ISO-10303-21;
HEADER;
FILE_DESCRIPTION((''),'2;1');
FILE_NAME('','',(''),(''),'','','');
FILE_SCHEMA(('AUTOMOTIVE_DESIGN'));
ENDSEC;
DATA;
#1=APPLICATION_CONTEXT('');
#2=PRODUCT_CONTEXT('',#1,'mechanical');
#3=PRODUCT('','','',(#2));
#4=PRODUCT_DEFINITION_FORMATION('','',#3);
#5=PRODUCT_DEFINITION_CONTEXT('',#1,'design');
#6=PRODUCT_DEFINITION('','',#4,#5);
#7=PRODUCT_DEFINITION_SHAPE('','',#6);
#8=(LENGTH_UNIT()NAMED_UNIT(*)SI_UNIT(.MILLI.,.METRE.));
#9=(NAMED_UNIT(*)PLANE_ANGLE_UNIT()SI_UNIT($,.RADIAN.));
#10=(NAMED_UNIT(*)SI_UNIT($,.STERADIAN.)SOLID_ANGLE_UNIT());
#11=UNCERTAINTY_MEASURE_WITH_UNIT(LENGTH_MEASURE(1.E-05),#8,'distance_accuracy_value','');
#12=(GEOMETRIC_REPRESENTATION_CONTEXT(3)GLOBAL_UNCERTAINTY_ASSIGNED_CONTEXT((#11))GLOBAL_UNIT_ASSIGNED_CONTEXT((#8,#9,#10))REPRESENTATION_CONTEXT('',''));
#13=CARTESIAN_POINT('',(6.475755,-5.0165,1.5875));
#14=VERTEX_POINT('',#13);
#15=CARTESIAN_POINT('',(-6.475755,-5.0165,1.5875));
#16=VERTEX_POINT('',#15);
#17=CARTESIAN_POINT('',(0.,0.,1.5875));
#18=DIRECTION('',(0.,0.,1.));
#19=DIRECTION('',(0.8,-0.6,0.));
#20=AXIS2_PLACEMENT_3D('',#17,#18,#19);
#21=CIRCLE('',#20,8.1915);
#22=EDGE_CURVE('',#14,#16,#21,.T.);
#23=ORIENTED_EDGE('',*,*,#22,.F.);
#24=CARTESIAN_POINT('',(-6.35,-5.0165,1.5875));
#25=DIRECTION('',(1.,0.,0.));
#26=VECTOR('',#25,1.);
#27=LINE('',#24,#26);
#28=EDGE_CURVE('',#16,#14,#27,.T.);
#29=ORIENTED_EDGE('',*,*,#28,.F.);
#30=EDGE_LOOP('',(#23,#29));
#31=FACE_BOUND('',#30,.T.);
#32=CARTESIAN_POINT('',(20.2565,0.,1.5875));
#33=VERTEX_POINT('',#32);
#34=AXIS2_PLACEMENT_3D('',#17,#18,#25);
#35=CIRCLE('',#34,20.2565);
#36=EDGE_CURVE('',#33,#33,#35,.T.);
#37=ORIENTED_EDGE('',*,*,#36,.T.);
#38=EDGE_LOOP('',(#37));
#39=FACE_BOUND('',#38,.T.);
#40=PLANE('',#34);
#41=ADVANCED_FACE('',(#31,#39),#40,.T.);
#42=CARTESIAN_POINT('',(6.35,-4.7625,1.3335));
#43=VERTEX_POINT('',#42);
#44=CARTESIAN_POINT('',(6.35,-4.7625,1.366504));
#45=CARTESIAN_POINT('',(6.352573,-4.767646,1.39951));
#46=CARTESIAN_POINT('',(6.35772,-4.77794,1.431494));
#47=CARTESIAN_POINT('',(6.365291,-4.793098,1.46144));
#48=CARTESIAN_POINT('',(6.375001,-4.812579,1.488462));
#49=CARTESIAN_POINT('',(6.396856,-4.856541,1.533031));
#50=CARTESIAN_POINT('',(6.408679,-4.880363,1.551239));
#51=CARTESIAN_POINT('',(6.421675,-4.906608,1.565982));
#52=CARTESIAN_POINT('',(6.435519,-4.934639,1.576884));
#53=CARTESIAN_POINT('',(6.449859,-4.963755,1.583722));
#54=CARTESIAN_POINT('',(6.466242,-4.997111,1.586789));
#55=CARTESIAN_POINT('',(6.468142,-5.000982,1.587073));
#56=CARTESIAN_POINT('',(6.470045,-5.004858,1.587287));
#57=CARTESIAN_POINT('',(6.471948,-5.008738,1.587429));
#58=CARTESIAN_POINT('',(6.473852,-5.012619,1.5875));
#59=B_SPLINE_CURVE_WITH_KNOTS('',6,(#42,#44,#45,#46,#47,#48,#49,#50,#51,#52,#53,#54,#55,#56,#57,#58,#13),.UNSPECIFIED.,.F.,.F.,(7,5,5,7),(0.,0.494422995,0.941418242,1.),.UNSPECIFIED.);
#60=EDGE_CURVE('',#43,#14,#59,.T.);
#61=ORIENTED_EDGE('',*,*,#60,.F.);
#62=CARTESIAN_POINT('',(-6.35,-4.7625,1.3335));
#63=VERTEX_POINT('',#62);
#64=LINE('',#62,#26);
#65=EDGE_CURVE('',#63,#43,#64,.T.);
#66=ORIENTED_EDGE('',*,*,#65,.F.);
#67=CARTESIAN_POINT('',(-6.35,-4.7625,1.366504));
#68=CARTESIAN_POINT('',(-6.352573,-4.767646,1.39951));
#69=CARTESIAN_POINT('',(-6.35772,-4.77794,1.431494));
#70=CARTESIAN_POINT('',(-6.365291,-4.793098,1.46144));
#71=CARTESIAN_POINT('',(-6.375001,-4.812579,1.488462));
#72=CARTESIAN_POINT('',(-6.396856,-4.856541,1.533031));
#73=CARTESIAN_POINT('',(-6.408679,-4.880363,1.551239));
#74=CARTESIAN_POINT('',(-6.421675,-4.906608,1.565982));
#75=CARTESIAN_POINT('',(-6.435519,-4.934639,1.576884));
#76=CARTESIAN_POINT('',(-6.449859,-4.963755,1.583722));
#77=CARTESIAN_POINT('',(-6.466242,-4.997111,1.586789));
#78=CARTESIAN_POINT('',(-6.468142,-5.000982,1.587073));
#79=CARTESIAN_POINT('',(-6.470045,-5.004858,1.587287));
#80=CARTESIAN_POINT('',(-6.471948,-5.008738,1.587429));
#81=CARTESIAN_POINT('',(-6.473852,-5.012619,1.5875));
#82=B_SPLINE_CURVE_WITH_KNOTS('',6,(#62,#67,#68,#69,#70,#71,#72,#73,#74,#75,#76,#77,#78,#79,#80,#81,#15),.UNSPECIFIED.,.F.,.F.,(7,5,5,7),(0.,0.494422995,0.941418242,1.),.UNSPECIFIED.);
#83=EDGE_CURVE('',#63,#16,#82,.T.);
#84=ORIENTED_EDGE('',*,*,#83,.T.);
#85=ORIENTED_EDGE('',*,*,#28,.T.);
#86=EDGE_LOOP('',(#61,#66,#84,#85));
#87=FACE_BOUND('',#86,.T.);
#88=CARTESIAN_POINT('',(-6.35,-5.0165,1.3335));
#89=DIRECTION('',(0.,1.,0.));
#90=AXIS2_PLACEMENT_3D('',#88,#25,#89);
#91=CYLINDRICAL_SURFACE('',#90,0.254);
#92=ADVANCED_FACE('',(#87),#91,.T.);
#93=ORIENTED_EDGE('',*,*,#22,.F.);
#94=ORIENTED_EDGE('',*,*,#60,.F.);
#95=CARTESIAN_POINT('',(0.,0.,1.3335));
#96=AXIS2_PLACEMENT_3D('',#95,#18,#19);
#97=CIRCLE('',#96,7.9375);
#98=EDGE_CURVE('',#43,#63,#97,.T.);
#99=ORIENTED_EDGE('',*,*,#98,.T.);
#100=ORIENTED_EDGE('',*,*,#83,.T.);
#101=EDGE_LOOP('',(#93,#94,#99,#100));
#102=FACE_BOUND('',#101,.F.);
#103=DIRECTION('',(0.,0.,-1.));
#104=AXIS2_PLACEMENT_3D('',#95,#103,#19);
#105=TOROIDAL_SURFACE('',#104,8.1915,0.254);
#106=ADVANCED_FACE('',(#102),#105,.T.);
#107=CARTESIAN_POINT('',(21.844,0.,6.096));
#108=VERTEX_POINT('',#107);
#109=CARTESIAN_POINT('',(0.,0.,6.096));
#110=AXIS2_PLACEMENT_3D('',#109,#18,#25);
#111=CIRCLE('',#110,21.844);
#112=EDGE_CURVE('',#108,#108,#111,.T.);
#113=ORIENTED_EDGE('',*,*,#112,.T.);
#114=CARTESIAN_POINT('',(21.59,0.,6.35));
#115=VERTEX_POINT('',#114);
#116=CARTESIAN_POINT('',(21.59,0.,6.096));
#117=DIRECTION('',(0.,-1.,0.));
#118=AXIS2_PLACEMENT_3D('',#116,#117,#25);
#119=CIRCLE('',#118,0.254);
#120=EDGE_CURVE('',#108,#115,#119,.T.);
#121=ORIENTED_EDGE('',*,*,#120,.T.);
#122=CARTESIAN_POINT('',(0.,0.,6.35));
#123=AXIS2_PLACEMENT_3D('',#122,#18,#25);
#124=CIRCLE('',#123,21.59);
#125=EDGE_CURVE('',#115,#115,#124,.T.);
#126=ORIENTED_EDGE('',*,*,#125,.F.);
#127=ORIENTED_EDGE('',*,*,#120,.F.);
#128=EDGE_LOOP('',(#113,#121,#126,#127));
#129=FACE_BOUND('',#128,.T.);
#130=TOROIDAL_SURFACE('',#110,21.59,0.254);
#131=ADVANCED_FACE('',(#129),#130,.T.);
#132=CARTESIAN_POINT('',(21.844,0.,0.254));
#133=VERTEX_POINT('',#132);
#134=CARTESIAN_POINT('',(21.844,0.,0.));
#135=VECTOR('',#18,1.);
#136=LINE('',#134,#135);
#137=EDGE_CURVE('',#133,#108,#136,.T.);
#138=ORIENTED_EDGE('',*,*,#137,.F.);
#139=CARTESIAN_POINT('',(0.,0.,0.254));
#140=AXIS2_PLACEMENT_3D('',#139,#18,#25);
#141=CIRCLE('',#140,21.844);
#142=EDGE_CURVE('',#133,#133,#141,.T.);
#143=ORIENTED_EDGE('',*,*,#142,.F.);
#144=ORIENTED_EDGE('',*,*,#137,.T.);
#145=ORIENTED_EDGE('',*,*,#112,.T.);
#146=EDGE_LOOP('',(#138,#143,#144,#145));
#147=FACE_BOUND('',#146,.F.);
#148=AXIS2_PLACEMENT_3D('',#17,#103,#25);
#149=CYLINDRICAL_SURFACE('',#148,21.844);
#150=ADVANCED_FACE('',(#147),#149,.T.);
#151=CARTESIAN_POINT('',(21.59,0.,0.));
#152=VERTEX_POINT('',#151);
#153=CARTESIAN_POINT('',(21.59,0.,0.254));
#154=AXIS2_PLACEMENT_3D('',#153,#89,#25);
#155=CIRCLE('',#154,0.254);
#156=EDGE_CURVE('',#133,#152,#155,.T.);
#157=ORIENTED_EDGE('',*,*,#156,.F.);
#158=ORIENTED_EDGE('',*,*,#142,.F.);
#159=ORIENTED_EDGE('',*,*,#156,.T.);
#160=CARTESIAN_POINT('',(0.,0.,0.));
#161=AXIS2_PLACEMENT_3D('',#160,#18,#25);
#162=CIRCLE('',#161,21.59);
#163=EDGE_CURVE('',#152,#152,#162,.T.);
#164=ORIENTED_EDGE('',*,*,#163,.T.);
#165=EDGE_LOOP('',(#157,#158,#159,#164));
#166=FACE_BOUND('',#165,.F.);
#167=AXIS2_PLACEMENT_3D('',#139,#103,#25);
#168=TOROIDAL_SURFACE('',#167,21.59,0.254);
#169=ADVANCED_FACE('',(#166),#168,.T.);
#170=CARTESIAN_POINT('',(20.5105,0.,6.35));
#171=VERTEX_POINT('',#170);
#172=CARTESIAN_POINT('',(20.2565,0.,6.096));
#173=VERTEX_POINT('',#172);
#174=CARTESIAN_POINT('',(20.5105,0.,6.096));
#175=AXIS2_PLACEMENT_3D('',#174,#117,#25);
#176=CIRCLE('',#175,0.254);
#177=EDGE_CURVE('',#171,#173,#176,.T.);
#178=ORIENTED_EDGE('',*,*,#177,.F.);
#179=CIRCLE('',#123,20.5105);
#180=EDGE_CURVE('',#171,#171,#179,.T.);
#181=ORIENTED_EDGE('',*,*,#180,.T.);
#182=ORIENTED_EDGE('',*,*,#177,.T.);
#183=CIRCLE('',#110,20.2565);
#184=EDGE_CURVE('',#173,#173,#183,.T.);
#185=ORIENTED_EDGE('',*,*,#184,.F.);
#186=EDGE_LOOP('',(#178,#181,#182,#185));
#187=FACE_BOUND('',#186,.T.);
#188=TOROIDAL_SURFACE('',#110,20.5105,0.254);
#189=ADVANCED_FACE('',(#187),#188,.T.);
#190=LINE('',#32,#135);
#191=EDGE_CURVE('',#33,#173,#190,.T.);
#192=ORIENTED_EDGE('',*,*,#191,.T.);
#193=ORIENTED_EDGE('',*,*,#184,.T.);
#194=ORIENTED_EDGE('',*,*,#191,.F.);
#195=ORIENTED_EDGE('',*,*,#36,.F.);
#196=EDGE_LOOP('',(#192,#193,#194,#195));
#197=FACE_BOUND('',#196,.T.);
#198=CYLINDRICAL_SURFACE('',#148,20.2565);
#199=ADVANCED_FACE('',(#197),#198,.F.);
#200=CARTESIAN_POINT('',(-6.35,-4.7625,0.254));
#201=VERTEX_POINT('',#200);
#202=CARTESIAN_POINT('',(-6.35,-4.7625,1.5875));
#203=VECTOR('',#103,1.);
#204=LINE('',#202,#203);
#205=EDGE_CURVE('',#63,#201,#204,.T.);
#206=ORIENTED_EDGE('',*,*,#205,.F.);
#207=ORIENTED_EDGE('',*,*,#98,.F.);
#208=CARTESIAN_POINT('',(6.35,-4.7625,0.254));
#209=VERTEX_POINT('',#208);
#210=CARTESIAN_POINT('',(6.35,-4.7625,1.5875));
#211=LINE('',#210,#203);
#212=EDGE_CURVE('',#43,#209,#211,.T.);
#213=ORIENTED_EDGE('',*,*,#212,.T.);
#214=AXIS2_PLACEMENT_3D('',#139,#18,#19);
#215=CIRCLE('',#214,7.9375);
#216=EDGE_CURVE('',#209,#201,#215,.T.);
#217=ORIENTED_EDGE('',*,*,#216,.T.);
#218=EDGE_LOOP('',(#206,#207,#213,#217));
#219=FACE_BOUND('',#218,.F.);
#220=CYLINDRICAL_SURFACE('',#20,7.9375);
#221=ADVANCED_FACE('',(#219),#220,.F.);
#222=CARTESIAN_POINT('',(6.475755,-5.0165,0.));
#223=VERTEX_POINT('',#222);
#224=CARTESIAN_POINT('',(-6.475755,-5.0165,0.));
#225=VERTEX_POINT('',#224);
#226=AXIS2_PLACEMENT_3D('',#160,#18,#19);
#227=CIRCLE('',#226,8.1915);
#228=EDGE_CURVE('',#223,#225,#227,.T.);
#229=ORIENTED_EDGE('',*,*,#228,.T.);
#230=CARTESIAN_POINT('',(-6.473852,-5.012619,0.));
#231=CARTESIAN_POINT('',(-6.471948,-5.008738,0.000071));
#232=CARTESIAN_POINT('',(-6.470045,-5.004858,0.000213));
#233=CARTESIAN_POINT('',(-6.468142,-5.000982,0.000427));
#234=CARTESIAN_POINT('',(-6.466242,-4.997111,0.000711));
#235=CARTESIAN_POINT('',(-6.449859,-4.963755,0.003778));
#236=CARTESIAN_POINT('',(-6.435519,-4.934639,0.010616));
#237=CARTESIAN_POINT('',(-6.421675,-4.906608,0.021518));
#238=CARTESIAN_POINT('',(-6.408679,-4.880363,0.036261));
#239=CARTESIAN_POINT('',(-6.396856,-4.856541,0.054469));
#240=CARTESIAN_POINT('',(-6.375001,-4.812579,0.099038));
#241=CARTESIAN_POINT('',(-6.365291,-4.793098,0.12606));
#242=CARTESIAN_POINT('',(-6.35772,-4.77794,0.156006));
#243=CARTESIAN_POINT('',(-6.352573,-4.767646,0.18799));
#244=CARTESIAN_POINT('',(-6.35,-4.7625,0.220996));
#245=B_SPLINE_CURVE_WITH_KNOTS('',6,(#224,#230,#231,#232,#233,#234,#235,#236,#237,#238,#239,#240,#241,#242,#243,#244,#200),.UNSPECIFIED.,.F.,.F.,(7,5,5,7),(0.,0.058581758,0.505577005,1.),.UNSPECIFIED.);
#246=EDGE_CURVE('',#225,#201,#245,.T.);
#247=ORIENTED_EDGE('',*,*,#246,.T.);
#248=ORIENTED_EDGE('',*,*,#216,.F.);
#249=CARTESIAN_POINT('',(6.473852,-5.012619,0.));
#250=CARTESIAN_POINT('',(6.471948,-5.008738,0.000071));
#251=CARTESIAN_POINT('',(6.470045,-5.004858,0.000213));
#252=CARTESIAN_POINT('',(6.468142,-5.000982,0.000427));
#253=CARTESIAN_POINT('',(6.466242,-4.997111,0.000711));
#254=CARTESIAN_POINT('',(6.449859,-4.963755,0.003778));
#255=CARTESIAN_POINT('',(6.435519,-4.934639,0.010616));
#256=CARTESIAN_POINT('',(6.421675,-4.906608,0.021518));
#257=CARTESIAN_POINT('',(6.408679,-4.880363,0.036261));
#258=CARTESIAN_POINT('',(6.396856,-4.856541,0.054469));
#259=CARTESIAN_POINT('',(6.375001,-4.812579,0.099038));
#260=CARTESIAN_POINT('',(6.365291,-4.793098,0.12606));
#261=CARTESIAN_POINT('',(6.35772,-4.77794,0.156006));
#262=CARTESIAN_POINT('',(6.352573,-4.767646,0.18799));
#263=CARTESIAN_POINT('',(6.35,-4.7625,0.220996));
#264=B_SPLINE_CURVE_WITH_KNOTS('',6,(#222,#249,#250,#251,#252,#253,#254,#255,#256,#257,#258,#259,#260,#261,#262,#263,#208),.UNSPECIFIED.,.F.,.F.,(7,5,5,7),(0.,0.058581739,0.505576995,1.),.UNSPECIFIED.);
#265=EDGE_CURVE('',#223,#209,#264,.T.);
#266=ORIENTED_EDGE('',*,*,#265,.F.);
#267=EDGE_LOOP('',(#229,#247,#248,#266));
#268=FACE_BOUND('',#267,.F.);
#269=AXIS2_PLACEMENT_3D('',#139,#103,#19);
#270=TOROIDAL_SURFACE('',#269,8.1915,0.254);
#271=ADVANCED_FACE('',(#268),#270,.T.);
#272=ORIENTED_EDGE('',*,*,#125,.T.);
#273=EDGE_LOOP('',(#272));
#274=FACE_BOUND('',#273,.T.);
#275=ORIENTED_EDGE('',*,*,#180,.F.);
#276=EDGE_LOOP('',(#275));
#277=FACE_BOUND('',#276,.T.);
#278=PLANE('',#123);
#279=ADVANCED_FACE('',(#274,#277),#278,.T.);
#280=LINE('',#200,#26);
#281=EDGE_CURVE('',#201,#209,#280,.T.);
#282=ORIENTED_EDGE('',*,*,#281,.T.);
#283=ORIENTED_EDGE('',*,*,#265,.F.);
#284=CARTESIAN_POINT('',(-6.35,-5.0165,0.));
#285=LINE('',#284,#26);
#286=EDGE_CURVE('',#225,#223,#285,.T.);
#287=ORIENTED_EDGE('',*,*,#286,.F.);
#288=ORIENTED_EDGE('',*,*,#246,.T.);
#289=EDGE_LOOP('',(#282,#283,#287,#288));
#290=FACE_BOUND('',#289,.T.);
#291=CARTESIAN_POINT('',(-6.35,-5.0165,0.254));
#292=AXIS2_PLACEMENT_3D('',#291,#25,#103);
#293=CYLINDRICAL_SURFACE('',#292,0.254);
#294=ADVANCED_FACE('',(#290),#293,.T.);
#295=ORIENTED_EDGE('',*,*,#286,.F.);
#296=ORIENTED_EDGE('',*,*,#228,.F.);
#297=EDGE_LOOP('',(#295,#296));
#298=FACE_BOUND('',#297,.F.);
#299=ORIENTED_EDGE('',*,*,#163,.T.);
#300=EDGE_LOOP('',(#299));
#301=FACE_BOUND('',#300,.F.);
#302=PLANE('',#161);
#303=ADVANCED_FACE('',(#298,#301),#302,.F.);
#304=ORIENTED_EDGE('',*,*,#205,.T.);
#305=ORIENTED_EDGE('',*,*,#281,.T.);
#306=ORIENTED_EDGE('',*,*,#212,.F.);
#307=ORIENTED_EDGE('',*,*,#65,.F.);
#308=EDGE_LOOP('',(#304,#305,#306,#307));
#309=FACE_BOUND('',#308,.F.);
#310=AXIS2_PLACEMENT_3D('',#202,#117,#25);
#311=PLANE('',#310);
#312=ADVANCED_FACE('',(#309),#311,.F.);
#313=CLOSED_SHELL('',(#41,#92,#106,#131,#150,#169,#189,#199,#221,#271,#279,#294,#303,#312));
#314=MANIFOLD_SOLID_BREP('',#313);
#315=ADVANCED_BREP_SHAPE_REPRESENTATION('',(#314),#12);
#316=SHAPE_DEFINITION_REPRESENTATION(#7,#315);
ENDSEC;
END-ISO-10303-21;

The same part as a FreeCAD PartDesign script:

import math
import FreeCAD as App
import Part
import Sketcher
Q = App.Units.Quantity


def edges_at(feature, points):
    """Names of the edges that pass closest to the given points."""
    edges = feature.Shape.Edges
    near = lambda p: min(range(len(edges)), key=lambda i: edges[i].distToShape(Part.Vertex(*p))[0])
    return sorted({f"Edge{near(p) + 1}" for p in points})

doc = App.newDocument("Part")
params = doc.addObject("Spreadsheet::Sheet", "Params")
for row, (alias, value) in enumerate([
    ("sketch1_diameter", "1.72 in"),
    ("pad1_length", "0.0625 in"),
    ("sketch2_diameter", "1.72 in"),
    ("sketch2_diameter2", "1.595 in"),
    ("pad2_length", "0.1875 in"),
    ("sketch3_width", "0.5 in"),
    ("sketch3_radius", "0.3125 in"),
    ("pocket1_length", "1 in"),
    ("fillet_radius", "0.01 in"),
], start=1):
    params.set(f"A{row}", alias)
    params.set(f"B{row}", "=" + value)
    params.setAlias(f"B{row}", alias)

body = doc.addObject("PartDesign::Body", "Body")

# Sketch on XY plane
sketch1 = doc.addObject("Sketcher::SketchObject", "Sketch")
body.addObject(sketch1)
sketch1.AttachmentSupport = (doc.XY_Plane, [""])
sketch1.MapMode = "FlatFace"
sketch1.addGeometry(Part.Circle(App.Vector(0, 0, 0), App.Vector(0, 0, 1), 22), False)
sketch1.addConstraint([
    Sketcher.Constraint("Coincident", 0, 3, -1, 1),
    Sketcher.Constraint("Diameter", 0, Q("1.72 in")),
])
sketch1.setExpression("Constraints[1]", "Params.sketch1_diameter")
pad1 = doc.addObject("PartDesign::Pad", "Pad")
body.addObject(pad1)
pad1.Profile = sketch1
pad1.setExpression("Length", "Params.pad1_length")

# Sketch on XY plane
sketch2 = doc.addObject("Sketcher::SketchObject", "Sketch001")
body.addObject(sketch2)
sketch2.AttachmentSupport = (doc.XY_Plane, [""])
sketch2.MapMode = "FlatFace"
sketch2.AttachmentOffset = App.Placement(App.Vector(0, 0, 0.0625 * 25.4), App.Rotation())
sketch2.addGeometry([
    Part.Circle(App.Vector(0, 0, 0), App.Vector(0, 0, 1), 22),
    Part.Circle(App.Vector(0, 0, 0), App.Vector(0, 0, 1), 20),
], False)
sketch2.addConstraint([
    Sketcher.Constraint("Coincident", 0, 3, -1, 1),
    Sketcher.Constraint("Coincident", 1, 3, -1, 1),
    Sketcher.Constraint("Diameter", 0, Q("1.72 in")),
    Sketcher.Constraint("Diameter", 1, Q("1.595 in")),
])
sketch2.setExpression("Constraints[2]", "Params.sketch2_diameter")
sketch2.setExpression("Constraints[3]", "Params.sketch2_diameter2")
pad2 = doc.addObject("PartDesign::Pad", "Pad001")
body.addObject(pad2)
pad2.Profile = sketch2
pad2.setExpression("Length", "Params.pad2_length")

# Sketch on XY plane
sketch3 = doc.addObject("Sketcher::SketchObject", "Sketch002")
body.addObject(sketch3)
sketch3.AttachmentSupport = (doc.XY_Plane, [""])
sketch3.MapMode = "FlatFace"
sketch3.AttachmentOffset = App.Placement(App.Vector(0, 0, 0.0625 * 25.4), App.Rotation())
sketch3.addGeometry([
    Part.LineSegment(App.Vector(-6, -5, 0), App.Vector(6, -5, 0)),
    Part.ArcOfCircle(Part.Circle(App.Vector(0, 0, 0), App.Vector(0, 0, 1), 8), math.radians(-37), math.radians(217)),
], False)
sketch3.addConstraint([
    Sketcher.Constraint("Coincident", 0, 1, 1, 2),
    Sketcher.Constraint("Coincident", 1, 1, 0, 2),
    Sketcher.Constraint("Horizontal", 0),
    Sketcher.Constraint("Coincident", 1, 3, -1, 1),
    Sketcher.Constraint("DistanceX", 0, 1, 0, 2, Q("0.5 in")),
    Sketcher.Constraint("Radius", 1, Q("0.3125 in")),
])
sketch3.setExpression("Constraints[4]", "Params.sketch3_width")
sketch3.setExpression("Constraints[5]", "Params.sketch3_radius")
pocket1 = doc.addObject("PartDesign::Pocket", "Pocket")
body.addObject(pocket1)
pocket1.Profile = sketch3
pocket1.setExpression("Length", "Params.pocket1_length")
doc.recompute()

fillet = doc.addObject("PartDesign::Fillet", "Fillet")
body.addObject(fillet)
fillet.Base = (pocket1, edges_at(pocket1, [
    (-21.844, 0, 6.35),
    (-20.256, 0, 6.35),
    (-21.844, 0, 0),
    (0, 7.938, 1.587),
    (0, -4.763, 0),
    (0, 7.938, 0),
    (0, -4.763, 1.587),
]))
fillet.setExpression("Radius", "Params.fillet_radius")

doc.recompute()
